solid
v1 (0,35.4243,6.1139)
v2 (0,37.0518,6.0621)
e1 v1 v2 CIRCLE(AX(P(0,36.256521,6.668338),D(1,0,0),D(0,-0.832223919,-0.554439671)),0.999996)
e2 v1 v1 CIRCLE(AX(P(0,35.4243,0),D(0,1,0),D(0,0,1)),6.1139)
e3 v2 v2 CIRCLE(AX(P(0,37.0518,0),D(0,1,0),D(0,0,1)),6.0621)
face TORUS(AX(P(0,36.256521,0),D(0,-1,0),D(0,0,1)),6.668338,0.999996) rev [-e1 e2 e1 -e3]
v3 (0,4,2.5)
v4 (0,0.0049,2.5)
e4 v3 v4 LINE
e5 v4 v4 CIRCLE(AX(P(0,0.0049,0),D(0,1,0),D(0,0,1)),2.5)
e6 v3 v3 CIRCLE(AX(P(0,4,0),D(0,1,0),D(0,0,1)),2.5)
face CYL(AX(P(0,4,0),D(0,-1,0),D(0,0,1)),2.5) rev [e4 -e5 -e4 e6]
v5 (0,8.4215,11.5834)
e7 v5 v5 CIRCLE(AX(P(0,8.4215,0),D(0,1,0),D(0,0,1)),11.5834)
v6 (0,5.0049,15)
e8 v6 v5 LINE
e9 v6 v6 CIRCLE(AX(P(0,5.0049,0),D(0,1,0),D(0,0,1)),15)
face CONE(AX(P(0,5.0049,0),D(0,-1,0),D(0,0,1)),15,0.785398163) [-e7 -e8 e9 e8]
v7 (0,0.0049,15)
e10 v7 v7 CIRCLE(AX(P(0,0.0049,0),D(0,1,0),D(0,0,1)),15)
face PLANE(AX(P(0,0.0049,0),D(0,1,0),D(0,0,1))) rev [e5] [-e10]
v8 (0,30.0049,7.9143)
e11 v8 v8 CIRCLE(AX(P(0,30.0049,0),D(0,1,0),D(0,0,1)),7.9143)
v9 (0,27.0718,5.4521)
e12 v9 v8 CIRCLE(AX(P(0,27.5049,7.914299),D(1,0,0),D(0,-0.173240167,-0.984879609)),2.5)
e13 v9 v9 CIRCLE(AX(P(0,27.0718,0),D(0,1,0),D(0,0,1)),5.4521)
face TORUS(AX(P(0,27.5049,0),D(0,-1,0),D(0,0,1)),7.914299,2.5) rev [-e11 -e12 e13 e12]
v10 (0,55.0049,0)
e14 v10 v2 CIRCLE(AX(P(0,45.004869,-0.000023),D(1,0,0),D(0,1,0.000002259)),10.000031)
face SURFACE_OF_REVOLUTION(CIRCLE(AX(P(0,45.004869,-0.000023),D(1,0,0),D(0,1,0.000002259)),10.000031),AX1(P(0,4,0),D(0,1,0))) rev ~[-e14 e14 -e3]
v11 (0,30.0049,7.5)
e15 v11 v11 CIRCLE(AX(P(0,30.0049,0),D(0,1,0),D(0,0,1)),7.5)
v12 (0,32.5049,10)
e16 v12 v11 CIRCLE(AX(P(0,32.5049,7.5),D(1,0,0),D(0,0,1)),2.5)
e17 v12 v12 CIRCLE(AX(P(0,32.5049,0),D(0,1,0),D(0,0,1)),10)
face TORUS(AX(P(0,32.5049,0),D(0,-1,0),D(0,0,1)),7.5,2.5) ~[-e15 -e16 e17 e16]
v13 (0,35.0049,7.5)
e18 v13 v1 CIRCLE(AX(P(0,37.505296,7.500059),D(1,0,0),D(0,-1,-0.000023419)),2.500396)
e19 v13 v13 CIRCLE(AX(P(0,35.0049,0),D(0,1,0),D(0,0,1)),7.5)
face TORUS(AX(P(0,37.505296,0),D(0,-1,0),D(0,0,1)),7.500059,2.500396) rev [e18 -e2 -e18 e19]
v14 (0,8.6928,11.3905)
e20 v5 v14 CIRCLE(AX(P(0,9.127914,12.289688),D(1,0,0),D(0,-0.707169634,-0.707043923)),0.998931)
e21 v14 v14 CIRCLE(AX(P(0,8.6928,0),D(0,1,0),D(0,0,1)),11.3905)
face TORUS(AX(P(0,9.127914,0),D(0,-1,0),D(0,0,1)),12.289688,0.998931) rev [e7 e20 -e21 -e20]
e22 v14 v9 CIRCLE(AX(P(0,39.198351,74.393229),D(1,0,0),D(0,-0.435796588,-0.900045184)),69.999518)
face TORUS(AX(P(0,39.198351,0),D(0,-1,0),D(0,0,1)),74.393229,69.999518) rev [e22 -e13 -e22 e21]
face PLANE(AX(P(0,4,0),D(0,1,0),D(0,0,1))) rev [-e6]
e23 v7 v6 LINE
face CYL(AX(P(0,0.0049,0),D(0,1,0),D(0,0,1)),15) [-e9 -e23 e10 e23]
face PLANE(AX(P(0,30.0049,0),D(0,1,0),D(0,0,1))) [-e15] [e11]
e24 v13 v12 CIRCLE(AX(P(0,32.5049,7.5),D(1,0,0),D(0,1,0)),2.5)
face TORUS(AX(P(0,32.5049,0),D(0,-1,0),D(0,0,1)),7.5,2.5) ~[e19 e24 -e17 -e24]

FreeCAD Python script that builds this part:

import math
import FreeCAD as App
import Part
import Sketcher

V = App.Vector
Q = App.Units.Quantity

doc = App.newDocument("Part")
body = doc.addObject("PartDesign::Body", "Body")

sketch1 = body.newObject("Sketcher::SketchObject", "Sketch")
sketch1.AttachmentSupport = (doc.getObject("YZ_Plane"), [""])
sketch1.MapMode = "FlatFace"
sketch1.addGeometry([
    Part.LineSegment(V(4, 2.5, 0), V(4, 0, 0)),
    Part.LineSegment(V(4, 0, 0), V(55, 0, 0)),
    Part.ArcOfCircle(Part.Circle(V(45, 0, 0), V(0, 0, 1), 10), math.radians(0), math.radians(143)),
    Part.ArcOfCircle(Part.Circle(V(36.26, 6.67, 0), V(0, 0, 1), 1), math.radians(-146), math.radians(-37)),
    Part.ArcOfCircle(Part.Circle(V(37.5, 7.5, 0), V(0, 0, 1), 2.5), math.radians(180), math.radians(214)),
    Part.ArcOfCircle(Part.Circle(V(32.5, 7.5, 0), V(0, 0, 1), 2.5), math.radians(0), math.radians(180)),
    Part.LineSegment(V(30, 7.5, 0), V(30, 7.91, 0)),
    Part.ArcOfCircle(Part.Circle(V(27.5, 7.91, 0), V(0, 0, 1), 2.5), math.radians(-100), math.radians(0)),
    Part.ArcOfCircle(Part.Circle(V(39.2, 74.39, 0), V(0, 0, 1), 70), math.radians(-115.84), math.radians(-99.98)),
    Part.ArcOfCircle(Part.Circle(V(9.13, 12.29, 0), V(0, 0, 1), 1), math.radians(-135.01), math.radians(-115.82)),
    Part.LineSegment(V(8.42, 11.58, 0), V(5, 15, 0)),
    Part.LineSegment(V(5, 15, 0), V(0, 15, 0)),
    Part.LineSegment(V(0, 15, 0), V(0, 2.5, 0)),
    Part.LineSegment(V(0, 2.5, 0), V(4, 2.5, 0)),
], False)
sketch1.addConstraint([
    Sketcher.Constraint("Coincident", 0, 2, 1, 1),
    Sketcher.Constraint("Coincident", 1, 2, 2, 1),
    Sketcher.Constraint("Tangent", 2, 2, 3, 2),
    Sketcher.Constraint("Tangent", 3, 1, 4, 2),
    Sketcher.Constraint("Tangent", 4, 1, 5, 1),
    Sketcher.Constraint("Tangent", 5, 2, 6, 1),
    Sketcher.Constraint("Tangent", 6, 2, 7, 2),
    Sketcher.Constraint("Tangent", 7, 1, 8, 2),
    Sketcher.Constraint("Tangent", 8, 1, 9, 2),
    Sketcher.Constraint("Tangent", 9, 1, 10, 1),
    Sketcher.Constraint("Coincident", 10, 2, 11, 1),
    Sketcher.Constraint("Coincident", 11, 2, 12, 1),
    Sketcher.Constraint("Coincident", 12, 2, 13, 1),
    Sketcher.Constraint("Coincident", 13, 2, 0, 1),
    Sketcher.Constraint("Vertical", 0),
    Sketcher.Constraint("Horizontal", 1),
    Sketcher.Constraint("Vertical", 6),
    Sketcher.Constraint("Horizontal", 11),
    Sketcher.Constraint("Vertical", 12),
    Sketcher.Constraint("Horizontal", 13),
    Sketcher.Constraint("Equal", 4, 5),
    Sketcher.Constraint("Equal", 5, 7),
    Sketcher.Constraint("PointOnObject", 2, 3, -1),
    Sketcher.Constraint("PointOnObject", 0, 2, -1),
    Sketcher.Constraint("Horizontal", 4, 3, 5, 3),
    Sketcher.Constraint("Radius", 3, 1.0),
    Sketcher.Constraint("Radius", 8, 70.0),
    Sketcher.Constraint("Radius", 4, 2.5),
    Sketcher.Constraint("DistanceX", 11, 2, 11, 1, 5.0),
    Sketcher.Constraint("Angle", 10, Q("135 deg")),
    Sketcher.Constraint("DistanceY", 0, 2, 0, 1, 2.5),
    Sketcher.Constraint("DistanceX", -1, 1, 0, 2, 4.0),
    Sketcher.Constraint("DistanceY", -1, 1, 10, 2, 15.0),
    Sketcher.Constraint("Radius", 2, 10.0),
    Sketcher.Constraint("Radius", 9, 0.999),
    Sketcher.Constraint("DistanceY", -1, 1, 4, 3, 7.5),
    Sketcher.Constraint("DistanceX", 4, 3, 2, 3, 7.5),
    Sketcher.Constraint("DistanceX", 10, 2, 7, 3, 22.5),
    Sketcher.Constraint("DistanceX", 1, 1, 1, 2, 51.005),
    Sketcher.Constraint("DistanceY", 6, 1, 6, 2, 0.4143),
    Sketcher.Constraint("DistanceX", -1, 1, 9, 3, 9.128),
])
revolution = body.newObject("PartDesign::Revolution", "Revolution")
revolution.Profile = sketch1
revolution.ReferenceAxis = (sketch1, ["H_Axis"])
revolution.Angle = 360

doc.recompute()
